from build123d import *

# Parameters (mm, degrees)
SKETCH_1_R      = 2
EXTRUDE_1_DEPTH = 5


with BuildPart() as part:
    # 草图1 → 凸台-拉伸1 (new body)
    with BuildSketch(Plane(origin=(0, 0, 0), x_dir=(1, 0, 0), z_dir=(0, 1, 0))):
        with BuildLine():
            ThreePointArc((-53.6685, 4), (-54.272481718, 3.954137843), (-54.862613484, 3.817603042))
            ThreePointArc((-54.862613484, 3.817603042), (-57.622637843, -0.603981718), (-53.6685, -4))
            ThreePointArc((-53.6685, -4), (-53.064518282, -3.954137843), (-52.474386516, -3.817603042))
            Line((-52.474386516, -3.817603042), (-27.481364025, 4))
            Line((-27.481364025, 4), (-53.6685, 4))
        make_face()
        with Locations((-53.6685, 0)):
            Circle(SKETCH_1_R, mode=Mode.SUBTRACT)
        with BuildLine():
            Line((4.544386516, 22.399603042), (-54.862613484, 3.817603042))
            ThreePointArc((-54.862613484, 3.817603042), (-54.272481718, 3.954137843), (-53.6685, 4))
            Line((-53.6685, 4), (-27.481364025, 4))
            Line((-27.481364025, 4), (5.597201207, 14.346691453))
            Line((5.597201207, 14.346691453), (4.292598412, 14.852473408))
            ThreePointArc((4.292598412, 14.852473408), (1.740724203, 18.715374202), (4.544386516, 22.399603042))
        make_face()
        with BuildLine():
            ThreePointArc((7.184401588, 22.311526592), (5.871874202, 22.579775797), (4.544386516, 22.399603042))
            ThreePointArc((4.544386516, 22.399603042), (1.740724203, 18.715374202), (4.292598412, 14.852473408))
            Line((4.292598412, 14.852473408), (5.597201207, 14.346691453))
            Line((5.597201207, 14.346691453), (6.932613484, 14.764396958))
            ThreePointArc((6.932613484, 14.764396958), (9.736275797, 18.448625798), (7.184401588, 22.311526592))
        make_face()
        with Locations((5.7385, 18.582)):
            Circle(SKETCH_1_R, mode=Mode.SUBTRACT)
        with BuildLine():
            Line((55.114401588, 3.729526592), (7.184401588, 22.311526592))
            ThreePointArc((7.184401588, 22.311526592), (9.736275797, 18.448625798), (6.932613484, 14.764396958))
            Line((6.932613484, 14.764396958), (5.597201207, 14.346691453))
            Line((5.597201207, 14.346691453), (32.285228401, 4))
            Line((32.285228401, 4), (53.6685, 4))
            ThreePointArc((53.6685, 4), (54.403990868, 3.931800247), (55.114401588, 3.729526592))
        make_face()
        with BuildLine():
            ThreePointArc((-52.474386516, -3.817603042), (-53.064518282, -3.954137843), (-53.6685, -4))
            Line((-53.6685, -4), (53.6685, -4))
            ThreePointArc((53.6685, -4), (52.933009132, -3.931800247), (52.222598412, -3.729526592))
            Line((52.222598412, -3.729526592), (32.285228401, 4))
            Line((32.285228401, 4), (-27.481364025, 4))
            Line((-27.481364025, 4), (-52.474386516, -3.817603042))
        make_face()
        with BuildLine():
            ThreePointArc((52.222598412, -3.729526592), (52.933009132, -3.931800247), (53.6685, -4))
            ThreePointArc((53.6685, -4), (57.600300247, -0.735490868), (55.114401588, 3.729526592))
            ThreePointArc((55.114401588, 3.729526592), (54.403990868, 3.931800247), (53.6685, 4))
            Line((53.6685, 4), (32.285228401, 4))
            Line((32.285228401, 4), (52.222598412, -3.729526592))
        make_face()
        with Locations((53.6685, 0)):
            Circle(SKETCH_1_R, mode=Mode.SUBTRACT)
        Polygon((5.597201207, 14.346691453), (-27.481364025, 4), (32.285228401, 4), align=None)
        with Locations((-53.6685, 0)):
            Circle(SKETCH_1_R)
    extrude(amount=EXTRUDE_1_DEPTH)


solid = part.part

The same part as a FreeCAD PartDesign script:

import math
import FreeCAD as App
import Part
import Sketcher
from FreeCAD import Vector

doc = App.newDocument("Part")
params = doc.addObject("Spreadsheet::Sheet", "Params")
for row, (alias, value) in enumerate([
    ("sketch1_diameter", "4 mm"),
    ("sketch1_radius", "4 mm"),
    ("pad1_length", "5 mm"),
], start=1):
    params.set(f"A{row}", alias)
    params.set(f"B{row}", "=" + value)
    params.setAlias(f"B{row}", alias)

body = doc.addObject("PartDesign::Body", "Body")

# Sketch on XZ plane
sketch1 = doc.addObject("Sketcher::SketchObject", "Sketch")
body.addObject(sketch1)
sketch1.AttachmentSupport = (doc.XZ_Plane, [""])
sketch1.MapMode = "FlatFace"
sketch1.addGeometry([
    Part.LineSegment(Vector(-53.7, 4, 0), Vector(53.7, 4, 0)),  # 0
    Part.ArcOfCircle(Part.Circle(Vector(53.7, 0, 0), Vector(0, 0, 1), 4), math.radians(-69), math.radians(90)),  # 1
    Part.LineSegment(Vector(55.1, -3.7, 0), Vector(7.2, -22.3, 0)),  # 2
    Part.ArcOfCircle(Part.Circle(Vector(5.7, -18.6, 0), Vector(0, 0, 1), 4), math.radians(-107), math.radians(-69)),  # 3
    Part.LineSegment(Vector(4.5, -22.4, 0), Vector(-54.9, -3.8, 0)),  # 4
    Part.ArcOfCircle(Part.Circle(Vector(-53.7, 0, 0), Vector(0, 0, 1), 4), math.radians(90), math.radians(253)),  # 5
    Part.Circle(Vector(53.7, 0, 0), Vector(0, 0, 1), 2),  # 6
    Part.Circle(Vector(5.7, -18.6, 0), Vector(0, 0, 1), 2),  # 7
], False)
sketch1.addConstraint([
    Sketcher.Constraint("Tangent", 0, 2, 1, 2),
    Sketcher.Constraint("Tangent", 1, 1, 2, 1),
    Sketcher.Constraint("Tangent", 2, 2, 3, 2),
    Sketcher.Constraint("Tangent", 3, 1, 4, 1),
    Sketcher.Constraint("Tangent", 4, 2, 5, 2),
    Sketcher.Constraint("Tangent", 5, 1, 0, 1),
    Sketcher.Constraint("Horizontal", 0),
    Sketcher.Constraint("Coincident", 6, 3, 1, 3),
    Sketcher.Constraint("Coincident", 7, 3, 3, 3),
    Sketcher.Constraint("Equal", 1, 3),
    Sketcher.Constraint("Equal", 3, 5),
    Sketcher.Constraint("Equal", 6, 7),
    Sketcher.Constraint("Symmetric", 1, 3, 5, 3, -1, 1),
    Sketcher.Constraint("Diameter", 6, 4.0),
    Sketcher.Constraint("Radius", 1, 4.0),
    Sketcher.Constraint("DistanceX", 0, 1, 0, 2, 107.337),
    Sketcher.Constraint("DistanceX", 3, 3, 1, 3, 47.93),
    Sketcher.Constraint("DistanceY", 3, 3, -1, 1, 18.582),
])
sketch1.setExpression("Constraints[13]", "Params.sketch1_diameter")
sketch1.setExpression("Constraints[14]", "Params.sketch1_radius")
pad1 = doc.addObject("PartDesign::Pad", "Pad")
body.addObject(pad1)
pad1.Profile = sketch1
pad1.setExpression("Length", "Params.pad1_length")
pad1.Reversed = True

doc.recompute()
